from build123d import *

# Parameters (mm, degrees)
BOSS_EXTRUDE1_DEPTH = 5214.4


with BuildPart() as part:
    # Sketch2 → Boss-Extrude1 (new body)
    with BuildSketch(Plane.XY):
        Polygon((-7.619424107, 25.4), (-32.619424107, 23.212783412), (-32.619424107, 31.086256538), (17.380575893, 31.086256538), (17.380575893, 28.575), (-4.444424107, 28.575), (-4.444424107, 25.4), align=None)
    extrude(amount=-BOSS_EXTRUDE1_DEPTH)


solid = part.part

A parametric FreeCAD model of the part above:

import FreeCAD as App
import Part
import Sketcher
from FreeCAD import Vector
Q = App.Units.Quantity


def add_polygon(sketch, points):
    """Adds a closed chain of lines whose ends are joined by coincident constraints."""
    first, n = sketch.GeometryCount, len(points)
    for a, b in zip(points, points[1:] + points[:1]):
        sketch.addGeometry(Part.LineSegment(App.Vector(*a, 0), App.Vector(*b, 0)), False)
    for i in range(n):
        sketch.addConstraint(Sketcher.Constraint("Coincident", first + i, 2, first + (i + 1) % n, 1))

doc = App.newDocument("Part")
params = doc.addObject("Spreadsheet::Sheet", "Params")
for row, (alias, value) in enumerate([
    ("sketch1_width", "50 mm"),
    ("pad1_length", "5214.4 mm"),
], start=1):
    params.set(f"A{row}", alias)
    params.set(f"B{row}", "=" + value)
    params.setAlias(f"B{row}", alias)

body = doc.addObject("PartDesign::Body", "Body")

# Sketch on XY plane
sketch1 = body.newObject("Sketcher::SketchObject", "Sketch")
sketch1.AttachmentSupport = (doc.getObject("XY_Plane"), [""])
sketch1.MapMode = "FlatFace"
add_polygon(sketch1, [(-32.6, 23.2), (-7.6, 25.4), (-4.4, 25.4), (-4.4, 28.6), (17.4, 28.6), (17.4, 31.1), (-32.6, 31.1)])  # lines 0-6
sketch1.addConstraint([
    Sketcher.Constraint("Horizontal", 1),
    Sketcher.Constraint("Vertical", 2),
    Sketcher.Constraint("Horizontal", 3),
    Sketcher.Constraint("Vertical", 4),
    Sketcher.Constraint("Horizontal", 5),
    Sketcher.Constraint("Vertical", 6),
    Sketcher.Constraint("Equal", 1, 2),
    Sketcher.Constraint("DistanceX", 5, 2, 5, 1, Q("50 mm")),
    Sketcher.Constraint("Angle", 0, Q("5 deg")),
    Sketcher.Constraint("DistanceX", 0, 2, 3, 2, Q("25 mm")),
    Sketcher.Constraint("DistanceY", -1, 1, 0, 2, Q("25.4 mm")),
    Sketcher.Constraint("DistanceX", 1, 1, 1, 2, Q("3.175 mm")),
    Sketcher.Constraint("DistanceY", 4, 1, 4, 2, Q("2.511257 mm")),
    Sketcher.Constraint("DistanceX", 0, 2, -1, 1, Q("7.619424 mm")),
])
sketch1.setExpression("Constraints[14]", "Params.sketch1_width")
pad1 = body.newObject("PartDesign::Pad", "Pad")
pad1.Profile = sketch1
pad1.setExpression("Length", "Params.pad1_length")
pad1.Reversed = True

doc.recompute()
